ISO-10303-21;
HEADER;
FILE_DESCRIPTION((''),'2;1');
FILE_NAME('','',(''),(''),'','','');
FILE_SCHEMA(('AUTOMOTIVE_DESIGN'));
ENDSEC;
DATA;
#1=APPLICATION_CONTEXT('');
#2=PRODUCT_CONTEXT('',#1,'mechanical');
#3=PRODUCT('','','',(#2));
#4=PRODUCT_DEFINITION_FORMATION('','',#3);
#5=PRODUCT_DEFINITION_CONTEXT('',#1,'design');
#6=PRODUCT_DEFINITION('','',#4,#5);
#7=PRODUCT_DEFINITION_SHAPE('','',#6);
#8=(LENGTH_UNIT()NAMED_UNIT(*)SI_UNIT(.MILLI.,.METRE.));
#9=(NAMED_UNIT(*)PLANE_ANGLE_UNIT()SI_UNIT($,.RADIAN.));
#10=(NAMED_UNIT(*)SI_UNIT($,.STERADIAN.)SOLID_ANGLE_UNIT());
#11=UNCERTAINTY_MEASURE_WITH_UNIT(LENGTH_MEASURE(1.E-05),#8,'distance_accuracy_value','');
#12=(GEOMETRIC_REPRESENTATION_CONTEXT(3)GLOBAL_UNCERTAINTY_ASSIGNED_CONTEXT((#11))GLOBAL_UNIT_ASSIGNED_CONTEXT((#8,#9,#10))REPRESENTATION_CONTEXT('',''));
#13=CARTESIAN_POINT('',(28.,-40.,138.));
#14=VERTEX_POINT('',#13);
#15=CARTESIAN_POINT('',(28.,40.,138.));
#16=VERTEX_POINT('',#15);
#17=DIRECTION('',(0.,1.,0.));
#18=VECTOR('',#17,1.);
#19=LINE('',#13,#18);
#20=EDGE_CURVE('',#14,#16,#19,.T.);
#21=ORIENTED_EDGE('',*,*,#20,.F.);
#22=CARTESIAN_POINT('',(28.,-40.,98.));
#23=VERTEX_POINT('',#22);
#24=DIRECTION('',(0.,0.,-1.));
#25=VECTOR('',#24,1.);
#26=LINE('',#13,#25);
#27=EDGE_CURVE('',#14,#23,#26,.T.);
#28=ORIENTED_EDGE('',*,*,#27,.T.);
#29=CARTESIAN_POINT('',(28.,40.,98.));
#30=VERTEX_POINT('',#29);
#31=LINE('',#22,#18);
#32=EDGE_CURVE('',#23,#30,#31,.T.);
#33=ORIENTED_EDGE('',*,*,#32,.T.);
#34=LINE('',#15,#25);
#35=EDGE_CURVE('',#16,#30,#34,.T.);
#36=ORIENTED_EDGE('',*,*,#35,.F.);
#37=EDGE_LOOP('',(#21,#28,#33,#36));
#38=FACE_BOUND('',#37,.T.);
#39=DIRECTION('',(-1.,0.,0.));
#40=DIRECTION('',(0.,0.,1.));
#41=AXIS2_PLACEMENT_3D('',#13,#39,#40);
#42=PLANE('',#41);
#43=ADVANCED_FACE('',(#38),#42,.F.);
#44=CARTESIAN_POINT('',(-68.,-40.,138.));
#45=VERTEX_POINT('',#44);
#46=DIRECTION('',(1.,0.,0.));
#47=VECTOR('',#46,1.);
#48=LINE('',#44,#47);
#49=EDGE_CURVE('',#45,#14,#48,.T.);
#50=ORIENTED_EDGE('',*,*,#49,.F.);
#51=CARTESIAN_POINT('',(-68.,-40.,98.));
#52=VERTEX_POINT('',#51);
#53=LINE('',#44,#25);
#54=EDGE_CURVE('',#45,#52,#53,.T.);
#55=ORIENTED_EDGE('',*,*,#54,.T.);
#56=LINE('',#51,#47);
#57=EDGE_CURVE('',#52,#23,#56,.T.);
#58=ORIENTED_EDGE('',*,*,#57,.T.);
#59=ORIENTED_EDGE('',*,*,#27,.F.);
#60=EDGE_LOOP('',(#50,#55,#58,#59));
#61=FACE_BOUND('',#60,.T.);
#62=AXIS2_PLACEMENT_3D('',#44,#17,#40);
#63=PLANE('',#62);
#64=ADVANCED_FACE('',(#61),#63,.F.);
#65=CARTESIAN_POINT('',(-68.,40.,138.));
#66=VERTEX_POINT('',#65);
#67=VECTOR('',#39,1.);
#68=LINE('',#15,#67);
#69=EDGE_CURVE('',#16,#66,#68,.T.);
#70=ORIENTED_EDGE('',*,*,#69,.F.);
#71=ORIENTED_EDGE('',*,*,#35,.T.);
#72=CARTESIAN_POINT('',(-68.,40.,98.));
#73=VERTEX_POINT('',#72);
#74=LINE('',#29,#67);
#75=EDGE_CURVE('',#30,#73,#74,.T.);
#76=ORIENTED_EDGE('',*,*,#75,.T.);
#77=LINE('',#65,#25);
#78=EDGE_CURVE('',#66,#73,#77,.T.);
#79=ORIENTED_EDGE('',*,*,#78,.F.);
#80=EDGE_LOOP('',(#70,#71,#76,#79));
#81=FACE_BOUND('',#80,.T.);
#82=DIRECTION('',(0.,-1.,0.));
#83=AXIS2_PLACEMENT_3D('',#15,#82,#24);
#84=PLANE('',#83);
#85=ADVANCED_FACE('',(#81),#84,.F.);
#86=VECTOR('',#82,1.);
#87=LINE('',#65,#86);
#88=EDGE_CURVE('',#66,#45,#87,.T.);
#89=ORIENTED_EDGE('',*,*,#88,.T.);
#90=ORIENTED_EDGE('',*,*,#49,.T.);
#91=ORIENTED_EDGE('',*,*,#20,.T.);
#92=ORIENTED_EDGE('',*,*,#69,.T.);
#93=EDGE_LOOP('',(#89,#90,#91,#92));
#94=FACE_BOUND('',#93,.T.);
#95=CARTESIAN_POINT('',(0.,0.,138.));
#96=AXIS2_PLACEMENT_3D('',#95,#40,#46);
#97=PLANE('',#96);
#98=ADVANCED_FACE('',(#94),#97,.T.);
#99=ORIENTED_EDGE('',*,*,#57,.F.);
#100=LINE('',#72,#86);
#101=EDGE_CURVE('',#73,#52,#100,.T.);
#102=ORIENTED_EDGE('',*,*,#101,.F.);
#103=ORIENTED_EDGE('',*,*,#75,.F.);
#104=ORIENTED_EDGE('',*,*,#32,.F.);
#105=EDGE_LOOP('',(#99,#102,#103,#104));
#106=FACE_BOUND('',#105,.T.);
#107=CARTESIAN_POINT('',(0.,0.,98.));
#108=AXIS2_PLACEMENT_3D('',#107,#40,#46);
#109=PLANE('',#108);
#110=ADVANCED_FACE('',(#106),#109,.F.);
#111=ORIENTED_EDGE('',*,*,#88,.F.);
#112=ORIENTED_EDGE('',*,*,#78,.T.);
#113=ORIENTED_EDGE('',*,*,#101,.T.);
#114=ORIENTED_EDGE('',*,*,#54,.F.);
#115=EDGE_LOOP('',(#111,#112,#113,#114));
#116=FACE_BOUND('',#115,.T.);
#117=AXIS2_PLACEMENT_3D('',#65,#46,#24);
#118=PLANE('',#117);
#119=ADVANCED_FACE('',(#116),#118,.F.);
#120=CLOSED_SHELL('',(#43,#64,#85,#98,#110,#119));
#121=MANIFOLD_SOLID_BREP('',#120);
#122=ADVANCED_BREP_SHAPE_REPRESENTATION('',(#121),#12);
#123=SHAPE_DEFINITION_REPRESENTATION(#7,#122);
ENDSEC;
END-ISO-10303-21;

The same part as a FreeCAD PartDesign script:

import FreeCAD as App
import Part
import Sketcher
from FreeCAD import Vector
Q = App.Units.Quantity

doc = App.newDocument("Part")
body = doc.addObject("PartDesign::Body", "Body")

sketch1 = body.newObject("Sketcher::SketchObject", "Sketch")
sketch1.AttachmentSupport = (doc.getObject("XY_Plane"), [""])
sketch1.MapMode = "FlatFace"
sketch1.AttachmentOffset = App.Placement(Vector(0, 0, 98), App.Rotation())
sketch1.addGeometry(Part.LineSegment(Vector(-68, 40, 0), Vector(-68, -40, 0)), False)
sketch1.addGeometry(Part.LineSegment(Vector(-68, -40, 0), Vector(28, -40, 0)), False)
sketch1.addGeometry(Part.LineSegment(Vector(28, -40, 0), Vector(28, 40, 0)), False)
sketch1.addGeometry(Part.LineSegment(Vector(28, 40, 0), Vector(-68, 40, 0)), False)
sketch1.addConstraint(Sketcher.Constraint("Coincident", 0, 2, 1, 1))
sketch1.addConstraint(Sketcher.Constraint("Coincident", 1, 2, 2, 1))
sketch1.addConstraint(Sketcher.Constraint("Coincident", 2, 2, 3, 1))
sketch1.addConstraint(Sketcher.Constraint("Coincident", 3, 2, 0, 1))
sketch1.addConstraint(Sketcher.Constraint("Vertical", 0))
sketch1.addConstraint(Sketcher.Constraint("Horizontal", 1))
sketch1.addConstraint(Sketcher.Constraint("Vertical", 2))
sketch1.addConstraint(Sketcher.Constraint("Horizontal", 3))
sketch1.addConstraint(Sketcher.Constraint("DistanceX", 1, 1, 1, 2, Q("96 mm")))
sketch1.addConstraint(Sketcher.Constraint("DistanceY", 0, 2, 0, 1, Q("80 mm")))
sketch1.addConstraint(Sketcher.Constraint("DistanceX", 0, 2, -1, 1, Q("68 mm")))
sketch1.addConstraint(Sketcher.Constraint("DistanceY", 0, 2, -1, 1, Q("40 mm")))
pad1 = body.newObject("PartDesign::Pad", "Pad")
pad1.Profile = sketch1
pad1.Length = 40

doc.recompute()
